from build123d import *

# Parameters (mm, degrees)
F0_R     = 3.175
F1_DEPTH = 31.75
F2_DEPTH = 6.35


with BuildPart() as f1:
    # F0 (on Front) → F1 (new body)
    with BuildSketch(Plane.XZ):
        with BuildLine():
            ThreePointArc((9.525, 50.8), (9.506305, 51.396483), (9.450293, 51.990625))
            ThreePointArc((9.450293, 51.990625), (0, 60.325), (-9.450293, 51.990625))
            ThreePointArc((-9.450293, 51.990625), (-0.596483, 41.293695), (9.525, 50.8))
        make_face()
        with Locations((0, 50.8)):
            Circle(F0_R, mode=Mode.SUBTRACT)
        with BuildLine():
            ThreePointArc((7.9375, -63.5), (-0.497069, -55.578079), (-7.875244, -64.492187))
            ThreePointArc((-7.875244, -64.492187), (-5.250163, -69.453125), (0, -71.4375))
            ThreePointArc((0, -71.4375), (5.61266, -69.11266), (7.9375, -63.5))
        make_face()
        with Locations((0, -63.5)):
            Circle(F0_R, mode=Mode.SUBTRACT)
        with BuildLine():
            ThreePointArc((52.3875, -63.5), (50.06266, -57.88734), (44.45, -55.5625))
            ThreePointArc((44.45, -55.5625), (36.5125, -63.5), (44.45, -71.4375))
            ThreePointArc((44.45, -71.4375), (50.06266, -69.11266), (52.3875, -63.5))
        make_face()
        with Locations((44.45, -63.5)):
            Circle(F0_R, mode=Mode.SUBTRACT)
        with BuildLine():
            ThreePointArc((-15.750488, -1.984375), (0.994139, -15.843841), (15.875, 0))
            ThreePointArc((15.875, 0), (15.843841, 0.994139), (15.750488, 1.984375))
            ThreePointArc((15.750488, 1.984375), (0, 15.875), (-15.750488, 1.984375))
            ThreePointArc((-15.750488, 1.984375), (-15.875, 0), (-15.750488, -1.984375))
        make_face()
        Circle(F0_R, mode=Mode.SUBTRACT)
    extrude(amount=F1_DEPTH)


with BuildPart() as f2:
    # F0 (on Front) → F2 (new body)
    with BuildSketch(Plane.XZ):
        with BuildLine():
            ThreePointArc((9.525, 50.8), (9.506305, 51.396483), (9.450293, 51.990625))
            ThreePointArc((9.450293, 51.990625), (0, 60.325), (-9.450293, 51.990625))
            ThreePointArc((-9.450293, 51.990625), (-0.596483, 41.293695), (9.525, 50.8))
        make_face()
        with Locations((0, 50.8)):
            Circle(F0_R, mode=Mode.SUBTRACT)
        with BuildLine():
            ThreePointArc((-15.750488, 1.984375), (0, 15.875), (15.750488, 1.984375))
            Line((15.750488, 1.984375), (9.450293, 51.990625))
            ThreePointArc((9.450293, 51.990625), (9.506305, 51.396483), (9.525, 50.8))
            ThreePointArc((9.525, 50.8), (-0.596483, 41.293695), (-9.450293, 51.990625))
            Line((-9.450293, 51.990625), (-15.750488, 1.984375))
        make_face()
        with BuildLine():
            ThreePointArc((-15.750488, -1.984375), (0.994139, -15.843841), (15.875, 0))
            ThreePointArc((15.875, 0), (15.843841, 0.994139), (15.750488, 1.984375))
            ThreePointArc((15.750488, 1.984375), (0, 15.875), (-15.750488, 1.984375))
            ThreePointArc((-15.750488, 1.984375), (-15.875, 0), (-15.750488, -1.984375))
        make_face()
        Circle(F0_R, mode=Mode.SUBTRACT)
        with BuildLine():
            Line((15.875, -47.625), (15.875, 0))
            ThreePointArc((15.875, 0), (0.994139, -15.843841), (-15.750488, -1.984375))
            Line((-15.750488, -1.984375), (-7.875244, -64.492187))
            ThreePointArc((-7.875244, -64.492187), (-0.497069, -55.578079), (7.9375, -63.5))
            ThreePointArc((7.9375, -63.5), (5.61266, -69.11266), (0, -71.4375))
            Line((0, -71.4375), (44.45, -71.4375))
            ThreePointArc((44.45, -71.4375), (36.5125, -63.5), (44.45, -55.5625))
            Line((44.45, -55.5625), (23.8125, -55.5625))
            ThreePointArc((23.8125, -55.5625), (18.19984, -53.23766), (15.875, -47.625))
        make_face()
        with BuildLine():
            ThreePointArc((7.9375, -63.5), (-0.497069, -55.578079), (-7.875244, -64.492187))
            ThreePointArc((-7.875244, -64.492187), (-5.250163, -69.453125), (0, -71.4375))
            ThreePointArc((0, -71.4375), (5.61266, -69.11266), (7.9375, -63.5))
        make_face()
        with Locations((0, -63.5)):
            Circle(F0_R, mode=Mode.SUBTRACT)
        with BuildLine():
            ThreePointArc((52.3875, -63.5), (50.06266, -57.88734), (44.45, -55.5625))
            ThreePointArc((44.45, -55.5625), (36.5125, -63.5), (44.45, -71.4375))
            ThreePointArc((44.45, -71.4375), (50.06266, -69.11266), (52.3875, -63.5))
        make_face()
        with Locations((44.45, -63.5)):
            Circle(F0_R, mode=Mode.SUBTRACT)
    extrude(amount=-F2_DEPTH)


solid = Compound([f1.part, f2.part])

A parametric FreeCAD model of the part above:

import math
import FreeCAD as App
import Part
import Sketcher
from FreeCAD import Vector
Q = App.Units.Quantity

doc = App.newDocument("Part")
body = doc.addObject("PartDesign::Body", "Body")
body.AllowCompound = True

# Sketch on XZ plane
sketch1 = doc.addObject("Sketcher::SketchObject", "Sketch")
body.addObject(sketch1)
sketch1.AttachmentSupport = (doc.XZ_Plane, [""])
sketch1.MapMode = "FlatFace"
sketch1.addGeometry(Part.ArcOfCircle(Part.Circle(Vector(0.000037, 50.800003, 0), Vector(0, 0, 1), 9.524963), math.radians(-0.000016), math.radians(7.180768)), False)
sketch1.addGeometry(Part.ArcOfCircle(Part.Circle(Vector(0, 50.8, 0), Vector(0, 0, 1), 9.525), math.radians(7.180756), math.radians(172.819244)), False)
sketch1.addGeometry(Part.ArcOfCircle(Part.Circle(Vector(0, 50.8, 0), Vector(0, 0, 1), 9.525), math.radians(172.819244), math.radians(360)), False)
sketch1.addGeometry(Part.Circle(Vector(0, 50.8, 0), Vector(0, 0, 1), 3.175), False)
sketch1.addGeometry(Part.ArcOfCircle(Part.Circle(Vector(0, -63.5, 0), Vector(0, 0, 1), 7.9375), math.radians(-0.000002), math.radians(187.180755)), False)
sketch1.addGeometry(Part.ArcOfCircle(Part.Circle(Vector(-0.000001, -63.500001, 0), Vector(0, 0, 1), 7.937499), math.radians(-172.819253), math.radians(-89.999996)), False)
sketch1.addGeometry(Part.ArcOfCircle(Part.Circle(Vector(0, -63.5, 0), Vector(0, 0, 1), 7.9375), math.radians(-89.999998), math.radians(-0.000002)), False)
sketch1.addGeometry(Part.Circle(Vector(0, -63.5, 0), Vector(0, 0, 1), 3.175), False)
sketch1.addGeometry(Part.ArcOfCircle(Part.Circle(Vector(44.45, -63.5, 0), Vector(0, 0, 1), 7.9375), math.radians(0.000002), math.radians(89.999998)), False)
sketch1.addGeometry(Part.ArcOfCircle(Part.Circle(Vector(44.45, -63.5, 0), Vector(0, 0, 1), 7.9375), math.radians(90), math.radians(270)), False)
sketch1.addGeometry(Part.ArcOfCircle(Part.Circle(Vector(44.45, -63.5, 0), Vector(0, 0, 1), 7.9375), math.radians(-89.999998), math.radians(-0.000002)), False)
sketch1.addGeometry(Part.Circle(Vector(44.45, -63.5, 0), Vector(0, 0, 1), 3.175), False)
sketch1.addGeometry(Part.ArcOfCircle(Part.Circle(Vector(0, 0, 0), Vector(0, 0, 1), 15.875), math.radians(-172.819243), math.radians(-0.000001)), False)
sketch1.addGeometry(Part.ArcOfCircle(Part.Circle(Vector(-0.000171, -0.000013, 0), Vector(0, 0, 1), 15.875171), math.radians(0.000047), math.radians(7.180725)), False)
sketch1.addGeometry(Part.ArcOfCircle(Part.Circle(Vector(0, 0, 0), Vector(0, 0, 1), 15.875), math.radians(7.180755), math.radians(172.819245)), False)
sketch1.addGeometry(Part.ArcOfCircle(Part.Circle(Vector(-0.000035, 0, 0), Vector(0, 0, 1), 15.874965), math.radians(172.819228), math.radians(187.180772)), False)
sketch1.addGeometry(Part.Circle(Vector(0, 0, 0), Vector(0, 0, 1), 3.175), False)
sketch1.addConstraint(Sketcher.Constraint("Coincident", 0, 2, 1, 1))
sketch1.addConstraint(Sketcher.Constraint("Coincident", 1, 2, 2, 1))
sketch1.addConstraint(Sketcher.Constraint("Coincident", 2, 2, 0, 1))
sketch1.addConstraint(Sketcher.Constraint("Coincident", 4, 2, 5, 1))
sketch1.addConstraint(Sketcher.Constraint("Coincident", 5, 2, 6, 1))
sketch1.addConstraint(Sketcher.Constraint("Coincident", 6, 2, 4, 1))
sketch1.addConstraint(Sketcher.Constraint("Coincident", 8, 2, 9, 1))
sketch1.addConstraint(Sketcher.Constraint("Coincident", 9, 2, 10, 1))
sketch1.addConstraint(Sketcher.Constraint("Coincident", 10, 2, 8, 1))
sketch1.addConstraint(Sketcher.Constraint("Coincident", 12, 2, 13, 1))
sketch1.addConstraint(Sketcher.Constraint("Coincident", 13, 2, 14, 1))
sketch1.addConstraint(Sketcher.Constraint("Coincident", 14, 2, 15, 1))
sketch1.addConstraint(Sketcher.Constraint("Coincident", 15, 2, 12, 1))
sketch1.addConstraint(Sketcher.Constraint("Coincident", 12, 3, -1, 1))
sketch1.addConstraint(Sketcher.Constraint("Coincident", 14, 3, -1, 1))
sketch1.addConstraint(Sketcher.Constraint("Coincident", 16, 3, -1, 1))
sketch1.addConstraint(Sketcher.Constraint("Coincident", 2, 3, 1, 3))
sketch1.addConstraint(Sketcher.Constraint("Coincident", 3, 3, 1, 3))
sketch1.addConstraint(Sketcher.Constraint("Coincident", 5, 3, 4, 3))
sketch1.addConstraint(Sketcher.Constraint("Coincident", 7, 3, 4, 3))
sketch1.addConstraint(Sketcher.Constraint("Coincident", 9, 3, 8, 3))
sketch1.addConstraint(Sketcher.Constraint("Coincident", 11, 3, 8, 3))
sketch1.addConstraint(Sketcher.Constraint("PointOnObject", 1, 3, -2))
sketch1.addConstraint(Sketcher.Constraint("PointOnObject", 4, 3, -2))
sketch1.addConstraint(Sketcher.Constraint("PointOnObject", 6, 3, -2))
sketch1.addConstraint(Sketcher.Constraint("PointOnObject", 15, 3, -1))
sketch1.addConstraint(Sketcher.Constraint("PointOnObject", 5, 2, -2))
sketch1.addConstraint(Sketcher.Constraint("PointOnObject", 12, 2, -1))
sketch1.addConstraint(Sketcher.Constraint("Diameter", 3, Q("0.25 in")))
sketch1.addConstraint(Sketcher.Constraint("Diameter", 7, Q("0.25 in")))
sketch1.addConstraint(Sketcher.Constraint("Diameter", 11, Q("0.25 in")))
sketch1.addConstraint(Sketcher.Constraint("Diameter", 16, Q("0.25 in")))
sketch1.addConstraint(Sketcher.Constraint("DistanceY", -1, 1, 0, 3, Q("2.0000001 in")))
sketch1.addConstraint(Sketcher.Constraint("DistanceY", -1, 1, 1, 3, Q("2 in")))
sketch1.addConstraint(Sketcher.Constraint("DistanceY", -1, 1, 2, 2, Q("2 in")))
sketch1.addConstraint(Sketcher.Constraint("Radius", 1, Q("0.375 in")))
sketch1.addConstraint(Sketcher.Constraint("Radius", 4, Q("0.3125 in")))
sketch1.addConstraint(Sketcher.Constraint("Radius", 8, Q("0.3125 in")))
sketch1.addConstraint(Sketcher.Constraint("Radius", 10, Q("0.3125 in")))
sketch1.addConstraint(Sketcher.Constraint("Radius", 12, Q("0.625 in")))
sketch1.addConstraint(Sketcher.Constraint("DistanceY", 4, 3, -1, 1, Q("2.5 in")))
sketch1.addConstraint(Sketcher.Constraint("DistanceY", 8, 3, -1, 1, Q("2.5 in")))
sketch1.addConstraint(Sketcher.Constraint("DistanceY", 6, 2, -1, 1, Q("2.5 in")))
sketch1.addConstraint(Sketcher.Constraint("DistanceY", 10, 2, -1, 1, Q("2.5 in")))
sketch1.addConstraint(Sketcher.Constraint("DistanceX", -1, 1, 8, 3, Q("1.75 in")))
sketch1.addConstraint(Sketcher.Constraint("DistanceX", -1, 1, 8, 2, Q("1.75 in")))
sketch1.addConstraint(Sketcher.Constraint("DistanceX", -1, 1, 9, 2, Q("1.75 in")))
sketch1.addConstraint(Sketcher.Constraint("DistanceY", -1, 1, 0, 2, Q("2.046875 in")))
sketch1.addConstraint(Sketcher.Constraint("DistanceY", -1, 1, 1, 2, Q("2.046875 in")))
sketch1.addConstraint(Sketcher.Constraint("DistanceY", -1, 1, 13, 2, Q("0.078125 in")))
sketch1.addConstraint(Sketcher.Constraint("DistanceY", -1, 1, 14, 2, Q("0.078125 in")))
sketch1.addConstraint(Sketcher.Constraint("DistanceY", 15, 2, -1, 1, Q("0.078125 in")))
sketch1.addConstraint(Sketcher.Constraint("Radius", 13, Q("15.875171 mm")))
sketch1.addConstraint(Sketcher.Constraint("Radius", 15, Q("15.874965 mm")))
sketch1.addConstraint(Sketcher.Constraint("DistanceX", 4, 2, -1, 1, Q("7.875244 mm")))
pad1 = doc.addObject("PartDesign::Pad", "Pad")
body.addObject(pad1)
pad1.Profile = sketch1
pad1.Length = Q("1.25 in")
body2 = doc.addObject("PartDesign::Body", "Body001")

# Sketch on XZ plane
sketch2 = doc.addObject("Sketcher::SketchObject", "Sketch001")
body2.addObject(sketch2)
sketch2.AttachmentSupport = (doc.getObject("XZ_Plane001"), [""])
sketch2.MapMode = "FlatFace"
sketch2.addGeometry(Part.ArcOfCircle(Part.Circle(Vector(0, 50.8, 0), Vector(0, 0, 1), 9.525), math.radians(7.180756), math.radians(172.819244)), False)
sketch2.addGeometry(Part.LineSegment(Vector(-9.450293, 51.990625, 0), Vector(-15.750488, 1.984375, 0)), False)
sketch2.addGeometry(Part.ArcOfCircle(Part.Circle(Vector(-0.000035, 0, 0), Vector(0, 0, 1), 15.874965), math.radians(172.819228), math.radians(187.180772)), False)
sketch2.addGeometry(Part.LineSegment(Vector(-15.750488, -1.984375, 0), Vector(-7.875244, -64.492187, 0)), False)
sketch2.addGeometry(Part.ArcOfCircle(Part.Circle(Vector(-0.000001, -63.500001, 0), Vector(0, 0, 1), 7.937499), math.radians(-172.819253), math.radians(-89.999996)), False)
sketch2.addGeometry(Part.LineSegment(Vector(0, -71.4375, 0), Vector(44.45, -71.4375, 0)), False)
sketch2.addGeometry(Part.ArcOfCircle(Part.Circle(Vector(44.45, -63.5, 0), Vector(0, 0, 1), 7.9375), math.radians(-89.999998), math.radians(-0.000002)), False)
sketch2.addGeometry(Part.ArcOfCircle(Part.Circle(Vector(44.45, -63.5, 0), Vector(0, 0, 1), 7.9375), math.radians(0.000002), math.radians(89.999998)), False)
sketch2.addGeometry(Part.LineSegment(Vector(44.45, -55.5625, 0), Vector(23.8125, -55.5625, 0)), False)
sketch2.addGeometry(Part.ArcOfCircle(Part.Circle(Vector(23.8125, -47.625, 0), Vector(0, 0, 1), 7.9375), math.radians(-179.999998), math.radians(-90.000002)), False)
sketch2.addGeometry(Part.LineSegment(Vector(15.875, -47.625, 0), Vector(15.875, 0, 0)), False)
sketch2.addGeometry(Part.ArcOfCircle(Part.Circle(Vector(-0.000171, -0.000013, 0), Vector(0, 0, 1), 15.875171), math.radians(0.000047), math.radians(7.180725)), False)
sketch2.addGeometry(Part.LineSegment(Vector(15.750488, 1.984375, 0), Vector(9.450293, 51.990625, 0)), False)
sketch2.addGeometry(Part.Circle(Vector(0, -63.5, 0), Vector(0, 0, 1), 3.175), False)
sketch2.addGeometry(Part.Circle(Vector(44.45, -63.5, 0), Vector(0, 0, 1), 3.175), False)
sketch2.addGeometry(Part.Circle(Vector(0, 0, 0), Vector(0, 0, 1), 3.175), False)
sketch2.addGeometry(Part.Circle(Vector(0, 50.8, 0), Vector(0, 0, 1), 3.175), False)
sketch2.addConstraint(Sketcher.Constraint("Coincident", 0, 2, 1, 1))
sketch2.addConstraint(Sketcher.Constraint("Coincident", 1, 2, 2, 1))
sketch2.addConstraint(Sketcher.Constraint("Coincident", 2, 2, 3, 1))
sketch2.addConstraint(Sketcher.Constraint("Coincident", 3, 2, 4, 1))
sketch2.addConstraint(Sketcher.Constraint("Coincident", 4, 2, 5, 1))
sketch2.addConstraint(Sketcher.Constraint("Coincident", 5, 2, 6, 1))
sketch2.addConstraint(Sketcher.Constraint("Coincident", 6, 2, 7, 1))
sketch2.addConstraint(Sketcher.Constraint("Coincident", 7, 2, 8, 1))
sketch2.addConstraint(Sketcher.Constraint("Coincident", 8, 2, 9, 2))
sketch2.addConstraint(Sketcher.Constraint("Coincident", 9, 1, 10, 1))
sketch2.addConstraint(Sketcher.Constraint("Coincident", 10, 2, 11, 1))
sketch2.addConstraint(Sketcher.Constraint("Coincident", 11, 2, 12, 1))
sketch2.addConstraint(Sketcher.Constraint("Coincident", 12, 2, 0, 1))
sketch2.addConstraint(Sketcher.Constraint("Horizontal", 5))
sketch2.addConstraint(Sketcher.Constraint("Horizontal", 8))
sketch2.addConstraint(Sketcher.Constraint("Vertical", 10))
sketch2.addConstraint(Sketcher.Constraint("Coincident", 15, 3, -1, 1))
sketch2.addConstraint(Sketcher.Constraint("Coincident", 7, 3, 6, 3))
sketch2.addConstraint(Sketcher.Constraint("Coincident", 13, 3, 4, 3))
sketch2.addConstraint(Sketcher.Constraint("Coincident", 14, 3, 6, 3))
sketch2.addConstraint(Sketcher.Constraint("Coincident", 16, 3, 0, 3))
sketch2.addConstraint(Sketcher.Constraint("PointOnObject", 0, 3, -2))
sketch2.addConstraint(Sketcher.Constraint("PointOnObject", 2, 3, -1))
sketch2.addConstraint(Sketcher.Constraint("PointOnObject", 4, 3, -2))
sketch2.addConstraint(Sketcher.Constraint("PointOnObject", 4, 2, -2))
sketch2.addConstraint(Sketcher.Constraint("PointOnObject", 10, 2, -1))
sketch2.addConstraint(Sketcher.Constraint("Diameter", 13, Q("0.25 in")))
sketch2.addConstraint(Sketcher.Constraint("Diameter", 14, Q("0.25 in")))
sketch2.addConstraint(Sketcher.Constraint("Diameter", 15, Q("0.25 in")))
sketch2.addConstraint(Sketcher.Constraint("Diameter", 16, Q("0.25 in")))
sketch2.addConstraint(Sketcher.Constraint("DistanceY", -1, 1, 0, 3, Q("2 in")))
sketch2.addConstraint(Sketcher.Constraint("Radius", 0, Q("0.375 in")))
sketch2.addConstraint(Sketcher.Constraint("Radius", 4, Q("0.3125 in")))
sketch2.addConstraint(Sketcher.Constraint("Radius", 6, Q("0.3125 in")))
sketch2.addConstraint(Sketcher.Constraint("Radius", 9, Q("0.3125 in")))
sketch2.addConstraint(Sketcher.Constraint("DistanceX", 5, 1, 5, 2, Q("1.75 in")))
sketch2.addConstraint(Sketcher.Constraint("DistanceY", 4, 3, -1, 1, Q("2.5 in")))
sketch2.addConstraint(Sketcher.Constraint("DistanceY", 6, 2, -1, 1, Q("2.5 in")))
sketch2.addConstraint(Sketcher.Constraint("DistanceX", 8, 2, 8, 1, Q("0.8125 in")))
sketch2.addConstraint(Sketcher.Constraint("DistanceY", 10, 1, 10, 2, Q("1.875 in")))
sketch2.addConstraint(Sketcher.Constraint("DistanceX", -1, 1, 6, 3, Q("1.75 in")))
sketch2.addConstraint(Sketcher.Constraint("DistanceX", -1, 1, 7, 2, Q("1.75 in")))
sketch2.addConstraint(Sketcher.Constraint("DistanceX", -1, 1, 9, 3, Q("0.9375 in")))
sketch2.addConstraint(Sketcher.Constraint("DistanceY", -1, 1, 0, 2, Q("2.046875 in")))
sketch2.addConstraint(Sketcher.Constraint("DistanceY", -1, 1, 1, 2, Q("0.078125 in")))
sketch2.addConstraint(Sketcher.Constraint("DistanceY", 2, 2, -1, 1, Q("0.078125 in")))
sketch2.addConstraint(Sketcher.Constraint("DistanceY", -1, 1, 11, 2, Q("0.078125 in")))
sketch2.addConstraint(Sketcher.Constraint("DistanceY", -1, 1, 12, 2, Q("2.046875 in")))
sketch2.addConstraint(Sketcher.Constraint("Radius", 11, Q("15.875171 mm")))
sketch2.addConstraint(Sketcher.Constraint("Radius", 2, Q("15.874965 mm")))
sketch2.addConstraint(Sketcher.Constraint("DistanceX", 1, 2, -1, 1, Q("15.750488 mm")))
sketch2.addConstraint(Sketcher.Constraint("DistanceX", -1, 1, 11, 2, Q("15.750488 mm")))
sketch2.addConstraint(Sketcher.Constraint("Distance", 3, Q("63.001953 mm")))
pad2 = doc.addObject("PartDesign::Pad", "Pad001")
body2.addObject(pad2)
pad2.Profile = sketch2
pad2.Length = Q("0.25 in")
pad2.Reversed = True

doc.recompute()
